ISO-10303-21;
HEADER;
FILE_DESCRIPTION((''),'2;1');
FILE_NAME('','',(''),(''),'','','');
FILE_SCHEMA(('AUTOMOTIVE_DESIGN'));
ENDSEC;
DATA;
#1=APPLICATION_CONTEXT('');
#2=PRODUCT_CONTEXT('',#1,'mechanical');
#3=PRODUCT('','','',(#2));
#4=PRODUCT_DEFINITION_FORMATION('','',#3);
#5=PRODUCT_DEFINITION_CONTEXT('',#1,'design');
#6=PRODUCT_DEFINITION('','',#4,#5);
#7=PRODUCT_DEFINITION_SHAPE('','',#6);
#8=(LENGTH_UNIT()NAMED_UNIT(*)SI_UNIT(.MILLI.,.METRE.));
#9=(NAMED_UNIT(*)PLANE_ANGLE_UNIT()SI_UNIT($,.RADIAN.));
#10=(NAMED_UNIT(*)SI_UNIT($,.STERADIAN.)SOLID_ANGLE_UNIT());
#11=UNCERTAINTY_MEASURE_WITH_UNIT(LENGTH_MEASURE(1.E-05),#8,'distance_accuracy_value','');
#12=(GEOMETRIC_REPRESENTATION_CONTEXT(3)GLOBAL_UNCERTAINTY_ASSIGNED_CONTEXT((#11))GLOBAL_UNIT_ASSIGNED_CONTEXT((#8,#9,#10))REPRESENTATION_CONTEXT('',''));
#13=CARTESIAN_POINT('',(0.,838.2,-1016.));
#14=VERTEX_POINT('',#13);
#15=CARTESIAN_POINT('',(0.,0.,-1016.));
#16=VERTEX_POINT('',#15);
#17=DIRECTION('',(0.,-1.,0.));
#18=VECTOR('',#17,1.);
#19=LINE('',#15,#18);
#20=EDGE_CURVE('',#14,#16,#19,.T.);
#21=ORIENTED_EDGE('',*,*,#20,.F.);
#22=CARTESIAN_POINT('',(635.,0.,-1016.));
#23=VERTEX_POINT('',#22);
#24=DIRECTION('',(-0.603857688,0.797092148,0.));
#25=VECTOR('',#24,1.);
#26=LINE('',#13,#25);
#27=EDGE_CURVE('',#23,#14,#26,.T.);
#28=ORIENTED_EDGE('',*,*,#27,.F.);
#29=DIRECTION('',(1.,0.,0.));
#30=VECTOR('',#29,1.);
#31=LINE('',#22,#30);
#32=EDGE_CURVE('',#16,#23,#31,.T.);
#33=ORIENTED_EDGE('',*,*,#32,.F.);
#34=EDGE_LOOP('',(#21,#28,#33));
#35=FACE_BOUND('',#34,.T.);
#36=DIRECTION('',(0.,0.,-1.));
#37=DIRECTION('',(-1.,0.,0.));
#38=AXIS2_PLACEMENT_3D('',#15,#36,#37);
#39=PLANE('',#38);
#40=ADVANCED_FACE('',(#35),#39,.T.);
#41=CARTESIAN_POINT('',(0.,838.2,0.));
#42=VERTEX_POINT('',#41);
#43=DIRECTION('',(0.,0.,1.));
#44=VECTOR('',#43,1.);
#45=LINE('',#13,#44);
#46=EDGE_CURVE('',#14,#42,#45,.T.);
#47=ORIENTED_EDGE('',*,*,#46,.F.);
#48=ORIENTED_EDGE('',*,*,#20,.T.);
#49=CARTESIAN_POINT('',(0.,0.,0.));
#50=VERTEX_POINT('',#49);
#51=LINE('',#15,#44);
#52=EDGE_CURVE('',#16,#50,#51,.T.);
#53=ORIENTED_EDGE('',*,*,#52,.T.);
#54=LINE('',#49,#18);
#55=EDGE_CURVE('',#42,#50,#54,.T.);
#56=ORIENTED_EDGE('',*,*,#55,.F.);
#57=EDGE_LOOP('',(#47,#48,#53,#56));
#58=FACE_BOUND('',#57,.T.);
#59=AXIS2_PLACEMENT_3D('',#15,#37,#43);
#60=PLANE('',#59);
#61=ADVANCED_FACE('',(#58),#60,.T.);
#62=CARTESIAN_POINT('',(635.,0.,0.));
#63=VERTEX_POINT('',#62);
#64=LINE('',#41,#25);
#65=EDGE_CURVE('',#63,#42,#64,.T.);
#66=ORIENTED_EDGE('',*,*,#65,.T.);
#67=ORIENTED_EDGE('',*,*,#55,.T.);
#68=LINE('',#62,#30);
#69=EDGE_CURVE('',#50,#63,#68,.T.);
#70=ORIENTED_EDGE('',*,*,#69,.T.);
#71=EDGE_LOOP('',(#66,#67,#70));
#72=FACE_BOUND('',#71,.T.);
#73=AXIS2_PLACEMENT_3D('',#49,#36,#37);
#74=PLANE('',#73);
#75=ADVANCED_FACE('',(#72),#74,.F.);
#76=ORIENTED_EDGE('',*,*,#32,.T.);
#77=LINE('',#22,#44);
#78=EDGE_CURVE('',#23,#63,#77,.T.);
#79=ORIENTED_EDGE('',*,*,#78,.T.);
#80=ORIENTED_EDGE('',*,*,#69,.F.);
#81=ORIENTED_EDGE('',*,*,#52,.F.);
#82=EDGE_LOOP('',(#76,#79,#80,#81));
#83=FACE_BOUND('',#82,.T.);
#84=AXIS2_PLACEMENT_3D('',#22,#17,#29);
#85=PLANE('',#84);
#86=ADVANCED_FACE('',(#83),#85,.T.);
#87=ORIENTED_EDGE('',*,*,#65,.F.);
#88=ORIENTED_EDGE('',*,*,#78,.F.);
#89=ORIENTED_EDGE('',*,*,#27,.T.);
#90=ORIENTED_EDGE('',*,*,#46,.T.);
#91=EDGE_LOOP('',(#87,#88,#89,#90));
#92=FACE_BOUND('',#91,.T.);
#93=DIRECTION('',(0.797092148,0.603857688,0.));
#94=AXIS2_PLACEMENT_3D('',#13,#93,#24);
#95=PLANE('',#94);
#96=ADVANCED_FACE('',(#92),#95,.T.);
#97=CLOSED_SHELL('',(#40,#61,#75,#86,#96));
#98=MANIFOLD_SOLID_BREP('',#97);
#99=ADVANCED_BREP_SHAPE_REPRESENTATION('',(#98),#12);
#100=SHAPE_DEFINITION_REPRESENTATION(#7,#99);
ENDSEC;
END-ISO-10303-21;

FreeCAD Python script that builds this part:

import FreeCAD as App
import Part
import Sketcher

V = App.Vector
Q = App.Units.Quantity

doc = App.newDocument("Part")
body = doc.addObject("PartDesign::Body", "Body")

sketch1 = body.newObject("Sketcher::SketchObject", "Sketch")
sketch1.AttachmentSupport = (doc.getObject("XY_Plane"), [""])
sketch1.MapMode = "FlatFace"
sketch1.addGeometry([
    Part.LineSegment(V(0, 838, 0), V(0, 0, 0)),
    Part.LineSegment(V(0, 0, 0), V(635, 0, 0)),
    Part.LineSegment(V(635, 0, 0), V(0, 838, 0)),
], False)
sketch1.addConstraint([
    Sketcher.Constraint("Coincident", 0, 2, 1, 1),
    Sketcher.Constraint("Coincident", 1, 2, 2, 1),
    Sketcher.Constraint("Coincident", 2, 2, 0, 1),
    Sketcher.Constraint("Vertical", 0),
    Sketcher.Constraint("Horizontal", 1),
    Sketcher.Constraint("Coincident", 0, 2, -1, 1),
    Sketcher.Constraint("DistanceX", 1, 1, 1, 2, Q("25 in")),
    Sketcher.Constraint("DistanceY", 0, 2, 0, 1, Q("33 in")),
])
pad1 = body.newObject("PartDesign::Pad", "Pad")
pad1.Profile = sketch1
pad1.Length = Q("40 in")
pad1.Reversed = True

doc.recompute()
